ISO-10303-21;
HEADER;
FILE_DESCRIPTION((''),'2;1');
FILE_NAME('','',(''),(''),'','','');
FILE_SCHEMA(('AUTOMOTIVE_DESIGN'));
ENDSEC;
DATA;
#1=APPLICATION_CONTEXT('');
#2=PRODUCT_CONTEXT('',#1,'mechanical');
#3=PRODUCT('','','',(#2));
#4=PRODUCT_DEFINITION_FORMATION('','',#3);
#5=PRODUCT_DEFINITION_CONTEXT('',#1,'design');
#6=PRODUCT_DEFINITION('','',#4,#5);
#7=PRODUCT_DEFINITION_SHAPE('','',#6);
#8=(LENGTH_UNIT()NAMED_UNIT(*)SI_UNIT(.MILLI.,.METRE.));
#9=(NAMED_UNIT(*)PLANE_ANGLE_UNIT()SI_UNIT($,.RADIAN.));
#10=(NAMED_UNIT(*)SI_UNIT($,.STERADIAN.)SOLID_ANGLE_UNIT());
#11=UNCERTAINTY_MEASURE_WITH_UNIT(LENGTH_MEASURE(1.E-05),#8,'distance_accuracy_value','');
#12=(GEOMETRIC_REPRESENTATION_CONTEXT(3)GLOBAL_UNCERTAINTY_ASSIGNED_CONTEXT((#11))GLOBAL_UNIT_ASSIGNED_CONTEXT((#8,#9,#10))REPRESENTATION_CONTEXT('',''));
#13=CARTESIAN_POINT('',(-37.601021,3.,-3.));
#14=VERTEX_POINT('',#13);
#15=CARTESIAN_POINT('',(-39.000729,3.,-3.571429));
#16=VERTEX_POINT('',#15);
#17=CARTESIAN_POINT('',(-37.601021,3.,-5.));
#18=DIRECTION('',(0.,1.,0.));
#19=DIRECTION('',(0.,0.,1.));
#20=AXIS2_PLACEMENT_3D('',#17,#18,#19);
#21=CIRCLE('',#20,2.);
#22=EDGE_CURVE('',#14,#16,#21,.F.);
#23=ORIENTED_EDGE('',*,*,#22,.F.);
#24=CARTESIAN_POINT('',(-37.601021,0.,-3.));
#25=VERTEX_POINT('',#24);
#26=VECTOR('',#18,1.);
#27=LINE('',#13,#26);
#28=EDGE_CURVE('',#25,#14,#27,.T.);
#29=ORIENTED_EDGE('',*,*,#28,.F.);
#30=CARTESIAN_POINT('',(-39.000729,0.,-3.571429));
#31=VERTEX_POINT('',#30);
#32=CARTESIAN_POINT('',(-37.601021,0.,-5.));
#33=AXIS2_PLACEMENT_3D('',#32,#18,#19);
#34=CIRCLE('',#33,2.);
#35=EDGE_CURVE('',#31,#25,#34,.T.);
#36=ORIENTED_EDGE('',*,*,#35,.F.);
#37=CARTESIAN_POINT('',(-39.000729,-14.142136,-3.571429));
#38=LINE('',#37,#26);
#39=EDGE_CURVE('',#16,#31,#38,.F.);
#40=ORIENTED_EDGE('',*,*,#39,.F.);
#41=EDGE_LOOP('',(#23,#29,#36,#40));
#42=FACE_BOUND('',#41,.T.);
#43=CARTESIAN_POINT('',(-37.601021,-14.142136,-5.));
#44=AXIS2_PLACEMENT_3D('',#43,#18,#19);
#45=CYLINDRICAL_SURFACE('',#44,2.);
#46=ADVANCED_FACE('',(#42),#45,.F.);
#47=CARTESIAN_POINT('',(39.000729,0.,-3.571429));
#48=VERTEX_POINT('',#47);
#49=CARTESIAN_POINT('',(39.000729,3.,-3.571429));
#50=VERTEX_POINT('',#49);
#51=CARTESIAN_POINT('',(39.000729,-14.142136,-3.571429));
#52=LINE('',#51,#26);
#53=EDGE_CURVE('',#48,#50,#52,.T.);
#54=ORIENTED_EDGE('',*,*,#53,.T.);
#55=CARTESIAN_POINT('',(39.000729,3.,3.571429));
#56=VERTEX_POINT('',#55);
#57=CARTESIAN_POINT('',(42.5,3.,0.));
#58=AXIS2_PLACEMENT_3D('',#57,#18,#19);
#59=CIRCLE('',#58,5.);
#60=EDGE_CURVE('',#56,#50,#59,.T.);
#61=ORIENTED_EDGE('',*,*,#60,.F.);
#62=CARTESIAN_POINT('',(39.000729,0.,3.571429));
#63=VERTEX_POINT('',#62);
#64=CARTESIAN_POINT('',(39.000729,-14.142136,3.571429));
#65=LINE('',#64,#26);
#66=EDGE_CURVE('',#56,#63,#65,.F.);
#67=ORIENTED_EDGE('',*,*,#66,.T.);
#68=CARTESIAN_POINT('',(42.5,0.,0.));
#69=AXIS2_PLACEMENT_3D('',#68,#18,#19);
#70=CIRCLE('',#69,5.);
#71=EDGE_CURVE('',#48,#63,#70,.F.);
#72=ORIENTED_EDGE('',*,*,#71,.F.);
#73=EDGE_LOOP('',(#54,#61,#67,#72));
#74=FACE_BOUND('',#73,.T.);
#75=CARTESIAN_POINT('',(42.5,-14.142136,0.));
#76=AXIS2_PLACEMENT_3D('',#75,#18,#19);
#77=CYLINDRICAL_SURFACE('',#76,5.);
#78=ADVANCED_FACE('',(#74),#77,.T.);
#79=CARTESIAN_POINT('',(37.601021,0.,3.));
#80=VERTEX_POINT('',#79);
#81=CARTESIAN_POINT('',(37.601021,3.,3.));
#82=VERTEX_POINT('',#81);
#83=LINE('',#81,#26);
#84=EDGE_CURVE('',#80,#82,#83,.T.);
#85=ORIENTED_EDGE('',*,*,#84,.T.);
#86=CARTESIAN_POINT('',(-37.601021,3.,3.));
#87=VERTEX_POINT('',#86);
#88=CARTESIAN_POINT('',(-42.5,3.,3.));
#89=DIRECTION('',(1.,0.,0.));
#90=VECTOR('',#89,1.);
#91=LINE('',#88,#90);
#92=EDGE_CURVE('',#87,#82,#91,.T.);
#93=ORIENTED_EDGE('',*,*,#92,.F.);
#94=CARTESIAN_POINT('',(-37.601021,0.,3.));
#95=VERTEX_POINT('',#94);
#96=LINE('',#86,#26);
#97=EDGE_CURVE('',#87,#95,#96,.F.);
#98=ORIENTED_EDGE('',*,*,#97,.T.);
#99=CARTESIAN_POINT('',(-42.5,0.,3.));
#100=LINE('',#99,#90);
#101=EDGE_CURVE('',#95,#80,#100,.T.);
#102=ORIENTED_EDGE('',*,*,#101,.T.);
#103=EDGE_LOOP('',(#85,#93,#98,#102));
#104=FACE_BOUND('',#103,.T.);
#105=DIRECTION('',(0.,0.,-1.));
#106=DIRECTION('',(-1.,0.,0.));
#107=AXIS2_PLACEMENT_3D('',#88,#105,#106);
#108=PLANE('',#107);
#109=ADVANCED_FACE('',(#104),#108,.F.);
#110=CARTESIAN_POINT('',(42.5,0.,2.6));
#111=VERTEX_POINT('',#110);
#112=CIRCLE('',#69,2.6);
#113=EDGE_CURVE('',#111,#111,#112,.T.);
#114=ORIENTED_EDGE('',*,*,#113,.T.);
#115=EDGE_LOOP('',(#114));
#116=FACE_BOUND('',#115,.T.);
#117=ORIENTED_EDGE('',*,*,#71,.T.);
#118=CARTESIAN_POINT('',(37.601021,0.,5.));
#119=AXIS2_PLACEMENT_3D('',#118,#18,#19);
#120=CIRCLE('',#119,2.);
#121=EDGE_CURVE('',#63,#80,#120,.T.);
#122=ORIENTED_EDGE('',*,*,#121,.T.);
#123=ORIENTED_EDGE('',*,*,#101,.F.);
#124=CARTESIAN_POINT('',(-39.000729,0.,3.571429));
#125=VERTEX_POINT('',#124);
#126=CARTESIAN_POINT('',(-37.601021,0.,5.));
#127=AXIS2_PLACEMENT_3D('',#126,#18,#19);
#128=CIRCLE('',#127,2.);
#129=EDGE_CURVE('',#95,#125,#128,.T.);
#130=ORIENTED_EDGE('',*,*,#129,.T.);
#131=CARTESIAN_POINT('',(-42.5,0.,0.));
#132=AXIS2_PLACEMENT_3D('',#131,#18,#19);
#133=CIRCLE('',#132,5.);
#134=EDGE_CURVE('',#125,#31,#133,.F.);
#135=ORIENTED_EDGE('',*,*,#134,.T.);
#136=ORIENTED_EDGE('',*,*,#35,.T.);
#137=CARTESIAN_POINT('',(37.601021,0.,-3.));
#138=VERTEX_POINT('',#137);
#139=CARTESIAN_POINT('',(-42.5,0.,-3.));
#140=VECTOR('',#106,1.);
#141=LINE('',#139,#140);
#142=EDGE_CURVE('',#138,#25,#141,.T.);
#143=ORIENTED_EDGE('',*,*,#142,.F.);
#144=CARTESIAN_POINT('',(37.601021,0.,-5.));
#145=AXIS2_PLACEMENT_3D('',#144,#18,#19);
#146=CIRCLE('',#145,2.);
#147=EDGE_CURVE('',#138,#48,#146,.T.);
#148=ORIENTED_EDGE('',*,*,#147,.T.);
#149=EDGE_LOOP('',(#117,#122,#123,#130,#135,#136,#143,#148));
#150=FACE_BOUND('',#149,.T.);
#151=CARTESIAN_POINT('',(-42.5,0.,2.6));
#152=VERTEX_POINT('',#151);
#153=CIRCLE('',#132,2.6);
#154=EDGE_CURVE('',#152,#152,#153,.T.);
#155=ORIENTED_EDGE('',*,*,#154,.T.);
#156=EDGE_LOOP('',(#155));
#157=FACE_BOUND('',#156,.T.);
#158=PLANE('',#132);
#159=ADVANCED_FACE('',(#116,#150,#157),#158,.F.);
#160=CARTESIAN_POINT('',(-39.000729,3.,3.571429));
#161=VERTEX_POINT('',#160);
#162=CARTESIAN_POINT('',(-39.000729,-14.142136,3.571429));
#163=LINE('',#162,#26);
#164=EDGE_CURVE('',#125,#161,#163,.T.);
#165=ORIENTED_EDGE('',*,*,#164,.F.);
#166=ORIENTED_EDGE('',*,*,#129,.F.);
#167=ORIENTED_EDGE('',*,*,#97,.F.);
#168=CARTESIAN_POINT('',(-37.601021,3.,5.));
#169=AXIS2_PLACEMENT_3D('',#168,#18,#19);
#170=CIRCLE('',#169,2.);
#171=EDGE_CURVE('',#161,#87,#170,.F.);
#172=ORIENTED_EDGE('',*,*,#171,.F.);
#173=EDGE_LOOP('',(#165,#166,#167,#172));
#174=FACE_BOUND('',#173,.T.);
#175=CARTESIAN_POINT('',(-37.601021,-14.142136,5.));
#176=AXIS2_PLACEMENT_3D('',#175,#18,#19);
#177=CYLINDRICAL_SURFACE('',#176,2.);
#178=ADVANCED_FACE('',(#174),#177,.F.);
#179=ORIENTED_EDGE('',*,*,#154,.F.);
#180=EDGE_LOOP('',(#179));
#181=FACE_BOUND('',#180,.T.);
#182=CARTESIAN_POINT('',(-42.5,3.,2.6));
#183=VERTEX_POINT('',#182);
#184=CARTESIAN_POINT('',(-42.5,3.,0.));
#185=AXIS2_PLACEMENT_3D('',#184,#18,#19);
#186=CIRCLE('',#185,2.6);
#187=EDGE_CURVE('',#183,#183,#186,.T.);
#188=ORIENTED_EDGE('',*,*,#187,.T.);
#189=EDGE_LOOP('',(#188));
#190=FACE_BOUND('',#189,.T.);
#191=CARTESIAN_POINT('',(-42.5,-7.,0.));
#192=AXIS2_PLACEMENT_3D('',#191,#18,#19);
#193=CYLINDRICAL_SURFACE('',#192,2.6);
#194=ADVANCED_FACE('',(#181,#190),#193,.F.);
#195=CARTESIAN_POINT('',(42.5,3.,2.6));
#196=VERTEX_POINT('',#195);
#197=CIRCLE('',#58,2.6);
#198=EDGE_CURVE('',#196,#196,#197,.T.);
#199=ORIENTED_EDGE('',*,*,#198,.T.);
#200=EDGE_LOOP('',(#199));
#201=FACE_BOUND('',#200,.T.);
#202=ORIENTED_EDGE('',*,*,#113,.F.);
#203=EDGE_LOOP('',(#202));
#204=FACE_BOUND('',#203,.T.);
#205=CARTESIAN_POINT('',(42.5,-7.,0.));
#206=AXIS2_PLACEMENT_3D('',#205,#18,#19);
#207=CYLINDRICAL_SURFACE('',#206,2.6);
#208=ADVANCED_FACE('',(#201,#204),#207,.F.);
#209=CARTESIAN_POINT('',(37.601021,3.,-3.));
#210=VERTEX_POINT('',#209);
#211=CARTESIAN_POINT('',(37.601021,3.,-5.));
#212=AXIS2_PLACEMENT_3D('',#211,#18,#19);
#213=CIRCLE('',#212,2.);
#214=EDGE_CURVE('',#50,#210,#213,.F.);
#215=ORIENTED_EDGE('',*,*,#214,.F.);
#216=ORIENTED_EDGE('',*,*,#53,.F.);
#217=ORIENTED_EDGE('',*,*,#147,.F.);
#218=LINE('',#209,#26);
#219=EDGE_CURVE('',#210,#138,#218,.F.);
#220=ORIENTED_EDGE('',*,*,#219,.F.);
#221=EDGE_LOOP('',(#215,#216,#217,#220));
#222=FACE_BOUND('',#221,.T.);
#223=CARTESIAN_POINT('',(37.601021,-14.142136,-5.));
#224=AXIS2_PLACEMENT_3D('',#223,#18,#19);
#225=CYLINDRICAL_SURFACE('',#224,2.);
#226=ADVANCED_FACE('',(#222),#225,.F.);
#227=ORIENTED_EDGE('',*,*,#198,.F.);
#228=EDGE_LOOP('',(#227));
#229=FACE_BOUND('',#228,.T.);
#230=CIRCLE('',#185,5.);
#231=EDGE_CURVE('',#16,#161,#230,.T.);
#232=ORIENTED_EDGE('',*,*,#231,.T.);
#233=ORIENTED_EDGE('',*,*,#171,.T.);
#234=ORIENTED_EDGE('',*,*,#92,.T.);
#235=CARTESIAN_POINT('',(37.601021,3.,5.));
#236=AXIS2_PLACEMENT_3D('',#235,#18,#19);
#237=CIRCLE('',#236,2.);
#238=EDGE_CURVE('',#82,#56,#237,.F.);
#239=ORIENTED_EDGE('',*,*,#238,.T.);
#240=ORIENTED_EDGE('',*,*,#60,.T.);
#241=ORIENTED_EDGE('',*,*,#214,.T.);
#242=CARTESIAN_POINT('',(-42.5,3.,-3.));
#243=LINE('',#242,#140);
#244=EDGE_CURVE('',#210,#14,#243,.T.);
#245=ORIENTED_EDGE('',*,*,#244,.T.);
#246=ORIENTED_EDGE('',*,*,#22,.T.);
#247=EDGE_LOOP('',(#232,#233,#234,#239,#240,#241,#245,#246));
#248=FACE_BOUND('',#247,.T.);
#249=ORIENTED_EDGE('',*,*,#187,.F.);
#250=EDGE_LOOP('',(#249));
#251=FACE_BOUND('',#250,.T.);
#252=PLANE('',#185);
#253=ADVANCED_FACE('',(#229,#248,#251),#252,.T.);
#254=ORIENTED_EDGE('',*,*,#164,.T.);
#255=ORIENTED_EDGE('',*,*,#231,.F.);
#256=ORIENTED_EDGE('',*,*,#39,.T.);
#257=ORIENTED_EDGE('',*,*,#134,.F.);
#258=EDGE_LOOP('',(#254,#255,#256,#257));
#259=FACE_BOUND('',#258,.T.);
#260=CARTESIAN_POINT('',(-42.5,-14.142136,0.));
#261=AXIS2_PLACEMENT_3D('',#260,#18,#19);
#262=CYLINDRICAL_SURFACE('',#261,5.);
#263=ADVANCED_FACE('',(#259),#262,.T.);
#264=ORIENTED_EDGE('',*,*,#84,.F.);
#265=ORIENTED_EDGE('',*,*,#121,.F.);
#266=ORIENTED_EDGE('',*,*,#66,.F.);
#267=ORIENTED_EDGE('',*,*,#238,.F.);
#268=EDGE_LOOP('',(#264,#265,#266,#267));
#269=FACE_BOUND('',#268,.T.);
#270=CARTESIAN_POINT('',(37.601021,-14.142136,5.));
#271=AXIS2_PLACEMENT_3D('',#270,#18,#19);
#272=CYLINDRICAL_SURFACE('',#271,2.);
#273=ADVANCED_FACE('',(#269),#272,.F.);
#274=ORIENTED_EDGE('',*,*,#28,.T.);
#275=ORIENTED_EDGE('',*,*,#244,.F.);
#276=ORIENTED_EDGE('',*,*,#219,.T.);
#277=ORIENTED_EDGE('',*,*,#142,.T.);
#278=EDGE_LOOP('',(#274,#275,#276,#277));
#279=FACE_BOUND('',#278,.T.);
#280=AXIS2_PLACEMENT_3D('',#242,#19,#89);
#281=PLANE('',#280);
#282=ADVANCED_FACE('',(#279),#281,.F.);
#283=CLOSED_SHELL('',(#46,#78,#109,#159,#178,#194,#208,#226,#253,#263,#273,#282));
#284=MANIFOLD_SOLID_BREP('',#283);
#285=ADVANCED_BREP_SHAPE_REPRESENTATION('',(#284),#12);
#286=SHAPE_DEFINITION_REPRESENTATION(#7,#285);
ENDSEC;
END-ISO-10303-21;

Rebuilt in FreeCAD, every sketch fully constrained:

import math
import FreeCAD as App
import Part
import Sketcher

V = App.Vector
Q = App.Units.Quantity


def edges_at(feature, points):
    """Names of the edges that pass closest to the given points."""
    edges = feature.Shape.Edges
    near = lambda p: min(range(len(edges)), key=lambda i: edges[i].distToShape(Part.Vertex(*p))[0])
    return sorted({f"Edge{near(p) + 1}" for p in points})

doc = App.newDocument("Part")
body = doc.addObject("PartDesign::Body", "Body")

# Sketch on XZ plane
sketch1 = body.newObject("Sketcher::SketchObject", "Sketch")
sketch1.AttachmentSupport = (doc.getObject("XZ_Plane"), [""])
sketch1.MapMode = "FlatFace"
sketch1.addGeometry(Part.LineSegment(V(42.5, -3, 0), V(-42.5, -3, 0)), False)
sketch1.addGeometry(Part.ArcOfCircle(Part.Circle(V(-42.5, 0, 0), V(0, 0, 1), 3), math.radians(90), math.radians(270)), False)
sketch1.addGeometry(Part.LineSegment(V(-42.5, 3, 0), V(42.5, 3, 0)), False)
sketch1.addGeometry(Part.ArcOfCircle(Part.Circle(V(42.5, 0, 0), V(0, 0, 1), 3), math.radians(-90), math.radians(90)), False)
sketch1.addConstraint(Sketcher.Constraint("Tangent", 0, 2, 1, 2))
sketch1.addConstraint(Sketcher.Constraint("Tangent", 1, 1, 2, 1))
sketch1.addConstraint(Sketcher.Constraint("Tangent", 2, 2, 3, 2))
sketch1.addConstraint(Sketcher.Constraint("Tangent", 3, 1, 0, 1))
sketch1.addConstraint(Sketcher.Constraint("Horizontal", 0))
sketch1.addConstraint(Sketcher.Constraint("Horizontal", 2))
sketch1.addConstraint(Sketcher.Constraint("Symmetric", 1, 3, 3, 3, -1, 1))
sketch1.addConstraint(Sketcher.Constraint("Radius", 1, Q("3 mm")))
sketch1.addConstraint(Sketcher.Constraint("DistanceX", 0, 2, 0, 1, Q("85 mm")))
pad1 = body.newObject("PartDesign::Pad", "Pad")
pad1.Profile = sketch1
pad1.Length = 3
pad1.Reversed = True

# Sketch on XZ plane
sketch2 = body.newObject("Sketcher::SketchObject", "Sketch001")
sketch2.AttachmentSupport = (doc.getObject("XZ_Plane"), [""])
sketch2.MapMode = "FlatFace"
sketch2.AttachmentOffset = App.Placement(V(0, 0, -3), App.Rotation())
sketch2.addGeometry(Part.Circle(V(-42, 0, 0), V(0, 0, 1), 5), False)
sketch2.addGeometry(Part.Circle(V(42, 0, 0), V(0, 0, 1), 5), False)
sketch2.addConstraint(Sketcher.Constraint("Equal", 0, 1))
sketch2.addConstraint(Sketcher.Constraint("Symmetric", 0, 3, 1, 3, -1, 1))
sketch2.addConstraint(Sketcher.Constraint("PointOnObject", 0, 3, -1))
sketch2.addConstraint(Sketcher.Constraint("Diameter", 0, Q("10 mm")))
sketch2.addConstraint(Sketcher.Constraint("DistanceX", 0, 3, 1, 3, Q("85 mm")))
pad2 = body.newObject("PartDesign::Pad", "Pad001")
pad2.Profile = sketch2
pad2.Length = 3

# Sketch on XZ plane
sketch3 = body.newObject("Sketcher::SketchObject", "Sketch002")
sketch3.AttachmentSupport = (doc.getObject("XZ_Plane"), [""])
sketch3.MapMode = "FlatFace"
sketch3.AttachmentOffset = App.Placement(V(0, 0, -3), App.Rotation())
sketch3.addGeometry(Part.Circle(V(-42.5, 0, 0), V(0, 0, 1), 2.6), False)
sketch3.addGeometry(Part.Circle(V(42.5, 0, 0), V(0, 0, 1), 2.6), False)
sketch3.addConstraint(Sketcher.Constraint("Equal", 0, 1))
sketch3.addConstraint(Sketcher.Constraint("Symmetric", 0, 3, 1, 3, -1, 1))
sketch3.addConstraint(Sketcher.Constraint("PointOnObject", 0, 3, -1))
sketch3.addConstraint(Sketcher.Constraint("Diameter", 0, Q("5.2 mm")))
sketch3.addConstraint(Sketcher.Constraint("DistanceX", 0, 3, 1, 3, Q("85 mm")))
pocket1 = body.newObject("PartDesign::Pocket", "Pocket")
pocket1.Profile = sketch3
pocket1.Length = 10
pocket1.Reversed = True
doc.recompute()

fillet = body.newObject("PartDesign::Fillet", "Fillet")
fillet.Base = (pocket1, edges_at(pocket1, [
    (-38.5, 1.5, 3),
    (-38.5, 1.5, -3),
    (38.5, 1.5, 3),
    (38.5, 1.5, -3),
]))
fillet.Radius = 2

doc.recompute()
